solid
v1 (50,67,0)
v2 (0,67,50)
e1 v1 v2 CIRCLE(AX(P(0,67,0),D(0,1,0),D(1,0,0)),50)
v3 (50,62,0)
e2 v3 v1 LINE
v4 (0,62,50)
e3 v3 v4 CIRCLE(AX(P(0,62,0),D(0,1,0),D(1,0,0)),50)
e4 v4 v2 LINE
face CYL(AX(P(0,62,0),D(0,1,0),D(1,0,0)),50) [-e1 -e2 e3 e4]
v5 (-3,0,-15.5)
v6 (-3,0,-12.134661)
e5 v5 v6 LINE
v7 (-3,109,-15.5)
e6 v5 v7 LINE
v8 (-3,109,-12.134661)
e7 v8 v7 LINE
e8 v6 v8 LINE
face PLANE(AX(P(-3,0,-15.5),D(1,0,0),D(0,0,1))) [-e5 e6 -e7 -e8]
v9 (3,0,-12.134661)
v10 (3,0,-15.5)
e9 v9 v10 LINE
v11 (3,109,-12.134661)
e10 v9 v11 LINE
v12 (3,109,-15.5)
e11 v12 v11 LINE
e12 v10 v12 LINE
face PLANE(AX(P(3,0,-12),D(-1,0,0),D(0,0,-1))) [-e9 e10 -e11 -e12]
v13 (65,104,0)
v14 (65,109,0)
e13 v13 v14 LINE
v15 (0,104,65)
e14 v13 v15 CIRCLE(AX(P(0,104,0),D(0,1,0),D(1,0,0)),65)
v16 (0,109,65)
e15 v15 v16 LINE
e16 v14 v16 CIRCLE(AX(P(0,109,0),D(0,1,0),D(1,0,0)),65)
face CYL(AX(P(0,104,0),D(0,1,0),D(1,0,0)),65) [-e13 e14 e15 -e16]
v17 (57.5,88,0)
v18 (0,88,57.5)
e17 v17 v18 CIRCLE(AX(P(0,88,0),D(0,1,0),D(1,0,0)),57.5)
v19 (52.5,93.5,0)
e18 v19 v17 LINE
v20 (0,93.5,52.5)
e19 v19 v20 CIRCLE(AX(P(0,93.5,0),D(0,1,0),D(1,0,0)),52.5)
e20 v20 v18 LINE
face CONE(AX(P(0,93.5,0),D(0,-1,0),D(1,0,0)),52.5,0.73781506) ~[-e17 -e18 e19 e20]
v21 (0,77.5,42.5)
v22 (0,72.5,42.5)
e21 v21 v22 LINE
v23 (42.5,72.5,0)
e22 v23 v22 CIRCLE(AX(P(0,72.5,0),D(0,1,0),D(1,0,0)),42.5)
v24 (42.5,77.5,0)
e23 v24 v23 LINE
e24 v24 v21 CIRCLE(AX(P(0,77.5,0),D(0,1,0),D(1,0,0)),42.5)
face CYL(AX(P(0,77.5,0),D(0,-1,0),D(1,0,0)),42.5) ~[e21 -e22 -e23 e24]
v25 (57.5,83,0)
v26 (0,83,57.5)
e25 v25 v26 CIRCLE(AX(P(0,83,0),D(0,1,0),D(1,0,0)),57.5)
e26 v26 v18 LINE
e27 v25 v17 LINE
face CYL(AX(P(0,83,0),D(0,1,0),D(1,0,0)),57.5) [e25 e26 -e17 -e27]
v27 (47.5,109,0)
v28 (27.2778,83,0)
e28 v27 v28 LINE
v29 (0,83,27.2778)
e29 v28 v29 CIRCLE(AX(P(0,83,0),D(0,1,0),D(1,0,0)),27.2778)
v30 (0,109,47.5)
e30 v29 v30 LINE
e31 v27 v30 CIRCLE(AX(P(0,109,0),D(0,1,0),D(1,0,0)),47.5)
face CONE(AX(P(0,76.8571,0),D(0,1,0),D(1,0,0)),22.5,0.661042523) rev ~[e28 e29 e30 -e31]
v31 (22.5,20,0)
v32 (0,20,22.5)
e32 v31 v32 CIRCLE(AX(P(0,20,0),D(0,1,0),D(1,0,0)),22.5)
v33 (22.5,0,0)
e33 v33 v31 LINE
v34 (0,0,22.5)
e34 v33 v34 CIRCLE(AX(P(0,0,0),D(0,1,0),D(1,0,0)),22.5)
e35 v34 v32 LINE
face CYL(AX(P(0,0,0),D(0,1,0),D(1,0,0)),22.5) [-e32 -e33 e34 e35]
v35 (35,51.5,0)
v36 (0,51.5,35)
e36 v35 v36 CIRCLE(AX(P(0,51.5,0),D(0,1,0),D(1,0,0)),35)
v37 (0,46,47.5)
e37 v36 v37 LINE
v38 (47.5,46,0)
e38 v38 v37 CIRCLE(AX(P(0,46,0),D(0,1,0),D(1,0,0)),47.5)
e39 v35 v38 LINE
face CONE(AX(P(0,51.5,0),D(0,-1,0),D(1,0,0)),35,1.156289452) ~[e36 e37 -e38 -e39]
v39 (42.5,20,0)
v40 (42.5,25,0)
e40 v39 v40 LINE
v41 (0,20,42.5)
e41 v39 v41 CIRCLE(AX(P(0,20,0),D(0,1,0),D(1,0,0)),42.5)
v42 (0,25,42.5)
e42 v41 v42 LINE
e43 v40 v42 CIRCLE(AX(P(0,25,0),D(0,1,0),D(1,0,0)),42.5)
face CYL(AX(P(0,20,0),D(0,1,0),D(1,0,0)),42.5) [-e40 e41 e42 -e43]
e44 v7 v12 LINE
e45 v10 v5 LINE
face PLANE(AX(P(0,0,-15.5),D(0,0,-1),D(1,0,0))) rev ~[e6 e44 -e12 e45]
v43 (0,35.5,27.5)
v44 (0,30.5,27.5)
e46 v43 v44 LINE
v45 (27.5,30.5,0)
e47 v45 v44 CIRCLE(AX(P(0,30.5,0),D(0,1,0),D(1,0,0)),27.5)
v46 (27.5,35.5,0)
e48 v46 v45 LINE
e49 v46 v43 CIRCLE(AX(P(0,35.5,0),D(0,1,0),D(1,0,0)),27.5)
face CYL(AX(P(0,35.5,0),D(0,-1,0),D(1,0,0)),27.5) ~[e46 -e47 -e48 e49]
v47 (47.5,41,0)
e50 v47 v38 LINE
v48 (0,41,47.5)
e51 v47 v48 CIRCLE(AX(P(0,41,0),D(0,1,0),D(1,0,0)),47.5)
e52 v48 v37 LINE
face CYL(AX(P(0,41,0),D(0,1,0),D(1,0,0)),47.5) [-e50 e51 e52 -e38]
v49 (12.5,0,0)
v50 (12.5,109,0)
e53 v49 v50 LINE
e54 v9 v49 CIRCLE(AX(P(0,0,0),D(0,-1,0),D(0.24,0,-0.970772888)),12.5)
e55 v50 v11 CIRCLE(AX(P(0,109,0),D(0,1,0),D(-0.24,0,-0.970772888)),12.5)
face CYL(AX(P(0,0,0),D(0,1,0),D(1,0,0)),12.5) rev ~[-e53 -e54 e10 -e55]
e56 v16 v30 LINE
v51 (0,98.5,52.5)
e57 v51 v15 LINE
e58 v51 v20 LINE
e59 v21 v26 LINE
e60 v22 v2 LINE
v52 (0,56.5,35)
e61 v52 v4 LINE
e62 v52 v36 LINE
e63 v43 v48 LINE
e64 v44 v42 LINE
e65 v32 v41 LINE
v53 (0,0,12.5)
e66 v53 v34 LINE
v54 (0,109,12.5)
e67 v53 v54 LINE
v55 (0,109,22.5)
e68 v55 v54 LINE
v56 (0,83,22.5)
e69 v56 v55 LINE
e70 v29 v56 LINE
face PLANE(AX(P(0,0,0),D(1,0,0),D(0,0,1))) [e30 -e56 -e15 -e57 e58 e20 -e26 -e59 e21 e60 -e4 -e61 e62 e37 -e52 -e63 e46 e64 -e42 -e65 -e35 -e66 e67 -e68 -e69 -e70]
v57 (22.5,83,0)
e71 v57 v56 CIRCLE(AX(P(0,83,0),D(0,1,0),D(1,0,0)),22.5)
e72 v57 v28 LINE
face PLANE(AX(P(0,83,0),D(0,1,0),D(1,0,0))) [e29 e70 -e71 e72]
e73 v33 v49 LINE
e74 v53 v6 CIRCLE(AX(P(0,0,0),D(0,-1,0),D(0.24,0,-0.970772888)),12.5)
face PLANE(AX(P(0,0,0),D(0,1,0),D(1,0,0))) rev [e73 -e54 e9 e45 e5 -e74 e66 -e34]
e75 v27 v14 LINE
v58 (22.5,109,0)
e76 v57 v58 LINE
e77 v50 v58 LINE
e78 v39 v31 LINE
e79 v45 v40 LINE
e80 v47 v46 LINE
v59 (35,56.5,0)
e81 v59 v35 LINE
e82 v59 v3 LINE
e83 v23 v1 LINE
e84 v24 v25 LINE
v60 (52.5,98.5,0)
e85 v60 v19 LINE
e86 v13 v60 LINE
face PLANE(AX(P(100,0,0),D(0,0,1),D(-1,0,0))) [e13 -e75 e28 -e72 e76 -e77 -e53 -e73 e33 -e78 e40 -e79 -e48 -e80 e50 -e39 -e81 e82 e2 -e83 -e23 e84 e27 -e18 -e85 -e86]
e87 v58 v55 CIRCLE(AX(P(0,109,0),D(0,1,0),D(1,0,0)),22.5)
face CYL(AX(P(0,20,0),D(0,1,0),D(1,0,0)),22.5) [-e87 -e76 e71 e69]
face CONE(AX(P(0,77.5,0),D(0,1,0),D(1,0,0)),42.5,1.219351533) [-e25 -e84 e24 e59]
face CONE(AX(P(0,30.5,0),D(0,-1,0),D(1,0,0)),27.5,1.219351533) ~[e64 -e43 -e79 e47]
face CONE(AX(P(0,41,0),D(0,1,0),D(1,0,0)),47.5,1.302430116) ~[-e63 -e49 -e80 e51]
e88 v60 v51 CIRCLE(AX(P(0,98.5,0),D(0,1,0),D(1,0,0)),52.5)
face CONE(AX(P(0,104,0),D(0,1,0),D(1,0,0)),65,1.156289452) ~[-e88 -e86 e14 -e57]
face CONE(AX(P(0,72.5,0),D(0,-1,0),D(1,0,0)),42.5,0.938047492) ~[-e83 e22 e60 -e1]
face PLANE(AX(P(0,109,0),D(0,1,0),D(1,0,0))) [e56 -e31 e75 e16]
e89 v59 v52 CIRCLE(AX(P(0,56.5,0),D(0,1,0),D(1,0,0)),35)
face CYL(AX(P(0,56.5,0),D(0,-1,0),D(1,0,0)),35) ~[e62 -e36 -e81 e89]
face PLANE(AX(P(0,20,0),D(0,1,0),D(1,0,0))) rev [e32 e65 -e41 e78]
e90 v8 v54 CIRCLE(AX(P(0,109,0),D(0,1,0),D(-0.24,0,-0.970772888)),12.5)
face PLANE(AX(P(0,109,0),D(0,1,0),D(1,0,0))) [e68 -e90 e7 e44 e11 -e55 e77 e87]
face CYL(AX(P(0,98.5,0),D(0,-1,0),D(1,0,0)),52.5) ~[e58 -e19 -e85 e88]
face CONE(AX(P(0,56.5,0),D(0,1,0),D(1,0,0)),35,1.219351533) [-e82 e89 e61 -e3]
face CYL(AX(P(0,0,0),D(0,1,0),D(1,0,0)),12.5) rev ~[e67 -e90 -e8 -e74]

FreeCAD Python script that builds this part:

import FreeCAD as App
import Part
import Sketcher

V = App.Vector
Q = App.Units.Quantity

doc = App.newDocument("Part")
params = doc.addObject("Spreadsheet::Sheet", "Params")
for row, (alias, value) in enumerate([
    ("sketch1_width", "20 mm"),
    ("sketch1_height", "5 mm"),
    ("revolution_angle", "360 deg"),
    ("sketch2_width", "6 mm"),
    ("sketch2_height", "3.5 mm"),
    ("pocket1_length", "115 mm"),
    ("sketch3_width", "100 mm"),
    ("sketch3_height", "90 mm"),
    ("pocket2_length", "115 mm"),
], start=1):
    params.set(f"A{row}", alias)
    params.set(f"B{row}", "=" + value)
    params.setAlias(f"B{row}", alias)

body = doc.addObject("PartDesign::Body", "Body")

# Sketch on XY plane
sketch1 = doc.addObject("Sketcher::SketchObject", "Sketch")
body.addObject(sketch1)
sketch1.AttachmentSupport = (doc.XY_Plane, [""])
sketch1.MapMode = "FlatFace"
sketch1.addGeometry(Part.LineSegment(V(12.5, 0, 0), V(22.5, 0, 0)), False)
sketch1.addGeometry(Part.LineSegment(V(22.5, 0, 0), V(22.5, 20, 0)), False)
sketch1.addGeometry(Part.LineSegment(V(22.5, 20, 0), V(42.5, 20, 0)), False)
sketch1.addGeometry(Part.LineSegment(V(42.5, 20, 0), V(42.5, 25, 0)), False)
sketch1.addGeometry(Part.LineSegment(V(42.5, 25, 0), V(27.5, 30.5, 0)), False)
sketch1.addGeometry(Part.LineSegment(V(27.5, 30.5, 0), V(27.5, 35.5, 0)), False)
sketch1.addGeometry(Part.LineSegment(V(27.5, 35.5, 0), V(47.5, 41, 0)), False)
sketch1.addGeometry(Part.LineSegment(V(47.5, 41, 0), V(47.5, 46, 0)), False)
sketch1.addGeometry(Part.LineSegment(V(47.5, 46, 0), V(35, 51.5, 0)), False)
sketch1.addGeometry(Part.LineSegment(V(35, 51.5, 0), V(35, 56.5, 0)), False)
sketch1.addGeometry(Part.LineSegment(V(35, 56.5, 0), V(50, 62, 0)), False)
sketch1.addGeometry(Part.LineSegment(V(50, 62, 0), V(50, 67, 0)), False)
sketch1.addGeometry(Part.LineSegment(V(50, 67, 0), V(42.5, 72.5, 0)), False)
sketch1.addGeometry(Part.LineSegment(V(42.5, 72.5, 0), V(42.5, 77.5, 0)), False)
sketch1.addGeometry(Part.LineSegment(V(42.5, 77.5, 0), V(57.5, 83, 0)), False)
sketch1.addGeometry(Part.LineSegment(V(57.5, 83, 0), V(57.5, 88, 0)), False)
sketch1.addGeometry(Part.LineSegment(V(57.5, 88, 0), V(52.5, 93.5, 0)), False)
sketch1.addGeometry(Part.LineSegment(V(52.5, 93.5, 0), V(52.5, 98.5, 0)), False)
sketch1.addGeometry(Part.LineSegment(V(52.5, 98.5, 0), V(65, 104, 0)), False)
sketch1.addGeometry(Part.LineSegment(V(65, 104, 0), V(65, 109, 0)), False)
sketch1.addGeometry(Part.LineSegment(V(65, 109, 0), V(47.5, 109, 0)), False)
sketch1.addGeometry(Part.LineSegment(V(47.5, 109, 0), V(27.2778, 83, 0)), False)
sketch1.addGeometry(Part.LineSegment(V(27.2778, 83, 0), V(22.5, 83, 0)), False)
sketch1.addGeometry(Part.LineSegment(V(22.5, 83, 0), V(22.5, 109, 0)), False)
sketch1.addGeometry(Part.LineSegment(V(22.5, 109, 0), V(12.5, 109, 0)), False)
sketch1.addGeometry(Part.LineSegment(V(12.5, 109, 0), V(12.5, 0, 0)), False)
sketch1.addConstraint(Sketcher.Constraint("Coincident", 0, 2, 1, 1))
sketch1.addConstraint(Sketcher.Constraint("Coincident", 1, 2, 2, 1))
sketch1.addConstraint(Sketcher.Constraint("Coincident", 2, 2, 3, 1))
sketch1.addConstraint(Sketcher.Constraint("Coincident", 3, 2, 4, 1))
sketch1.addConstraint(Sketcher.Constraint("Coincident", 4, 2, 5, 1))
sketch1.addConstraint(Sketcher.Constraint("Coincident", 5, 2, 6, 1))
sketch1.addConstraint(Sketcher.Constraint("Coincident", 6, 2, 7, 1))
sketch1.addConstraint(Sketcher.Constraint("Coincident", 7, 2, 8, 1))
sketch1.addConstraint(Sketcher.Constraint("Coincident", 8, 2, 9, 1))
sketch1.addConstraint(Sketcher.Constraint("Coincident", 9, 2, 10, 1))
sketch1.addConstraint(Sketcher.Constraint("Coincident", 10, 2, 11, 1))
sketch1.addConstraint(Sketcher.Constraint("Coincident", 11, 2, 12, 1))
sketch1.addConstraint(Sketcher.Constraint("Coincident", 12, 2, 13, 1))
sketch1.addConstraint(Sketcher.Constraint("Coincident", 13, 2, 14, 1))
sketch1.addConstraint(Sketcher.Constraint("Coincident", 14, 2, 15, 1))
sketch1.addConstraint(Sketcher.Constraint("Coincident", 15, 2, 16, 1))
sketch1.addConstraint(Sketcher.Constraint("Coincident", 16, 2, 17, 1))
sketch1.addConstraint(Sketcher.Constraint("Coincident", 17, 2, 18, 1))
sketch1.addConstraint(Sketcher.Constraint("Coincident", 18, 2, 19, 1))
sketch1.addConstraint(Sketcher.Constraint("Coincident", 19, 2, 20, 1))
sketch1.addConstraint(Sketcher.Constraint("Coincident", 20, 2, 21, 1))
sketch1.addConstraint(Sketcher.Constraint("Coincident", 21, 2, 22, 1))
sketch1.addConstraint(Sketcher.Constraint("Coincident", 22, 2, 23, 1))
sketch1.addConstraint(Sketcher.Constraint("Coincident", 23, 2, 24, 1))
sketch1.addConstraint(Sketcher.Constraint("Coincident", 24, 2, 25, 1))
sketch1.addConstraint(Sketcher.Constraint("Coincident", 25, 2, 0, 1))
sketch1.addConstraint(Sketcher.Constraint("Horizontal", 0))
sketch1.addConstraint(Sketcher.Constraint("Vertical", 1))
sketch1.addConstraint(Sketcher.Constraint("Horizontal", 2))
sketch1.addConstraint(Sketcher.Constraint("Vertical", 3))
sketch1.addConstraint(Sketcher.Constraint("Vertical", 5))
sketch1.addConstraint(Sketcher.Constraint("Vertical", 7))
sketch1.addConstraint(Sketcher.Constraint("Vertical", 9))
sketch1.addConstraint(Sketcher.Constraint("Vertical", 11))
sketch1.addConstraint(Sketcher.Constraint("Vertical", 13))
sketch1.addConstraint(Sketcher.Constraint("Vertical", 15))
sketch1.addConstraint(Sketcher.Constraint("Vertical", 17))
sketch1.addConstraint(Sketcher.Constraint("Vertical", 19))
sketch1.addConstraint(Sketcher.Constraint("Horizontal", 20))
sketch1.addConstraint(Sketcher.Constraint("Horizontal", 22))
sketch1.addConstraint(Sketcher.Constraint("Vertical", 23))
sketch1.addConstraint(Sketcher.Constraint("Horizontal", 24))
sketch1.addConstraint(Sketcher.Constraint("Vertical", 25))
sketch1.addConstraint(Sketcher.Constraint("PointOnObject", 0, 2, -1))
sketch1.addConstraint(Sketcher.Constraint("Parallel", 10, 14))
sketch1.addConstraint(Sketcher.Constraint("Horizontal", 14, 2, 21, 2))
sketch1.addConstraint(Sketcher.Constraint("Horizontal", 20, 2, 23, 2))
sketch1.addConstraint(Sketcher.Constraint("Vertical", 3, 2, 12, 2))
sketch1.addConstraint(Sketcher.Constraint("Vertical", 7, 2, 20, 2))
sketch1.addConstraint(Sketcher.Constraint("Vertical", 1, 2, 22, 2))
sketch1.addConstraint(Sketcher.Constraint("Equal", 2, 1))
sketch1.addConstraint(Sketcher.Constraint("Equal", 3, 5))
sketch1.addConstraint(Sketcher.Constraint("Equal", 5, 7))
sketch1.addConstraint(Sketcher.Constraint("Equal", 7, 9))
sketch1.addConstraint(Sketcher.Constraint("Equal", 9, 11))
sketch1.addConstraint(Sketcher.Constraint("Equal", 11, 13))
sketch1.addConstraint(Sketcher.Constraint("Equal", 13, 15))
sketch1.addConstraint(Sketcher.Constraint("Equal", 15, 17))
sketch1.addConstraint(Sketcher.Constraint("Equal", 17, 19))
sketch1.addConstraint(Sketcher.Constraint("Equal", 4, 10))
sketch1.addConstraint(Sketcher.Constraint("Equal", 10, 14))
sketch1.addConstraint(Sketcher.Constraint("Equal", 8, 18))
sketch1.addConstraint(Sketcher.Constraint("DistanceX", 2, 1, 2, 2, Q("20 mm")))
sketch1.addConstraint(Sketcher.Constraint("DistanceY", 3, 1, 3, 2, Q("5 mm")))
sketch1.addConstraint(Sketcher.Constraint("DistanceX", -1, 1, 8, 2, Q("35 mm")))
sketch1.addConstraint(Sketcher.Constraint("DistanceX", -1, 1, 10, 2, Q("50 mm")))
sketch1.addConstraint(Sketcher.Constraint("DistanceX", -1, 1, 18, 2, Q("65 mm")))
sketch1.addConstraint(Sketcher.Constraint("DistanceX", 1, 2, 4, 2, Q("5 mm")))
sketch1.addConstraint(Sketcher.Constraint("DistanceX", 3, 2, 6, 2, Q("5 mm")))
sketch1.addConstraint(Sketcher.Constraint("DistanceY", 3, 2, 6, 2, Q("16 mm")))
sketch1.addConstraint(Sketcher.Constraint("DistanceY", 5, 2, 8, 2, Q("16 mm")))
sketch1.addConstraint(Sketcher.Constraint("DistanceY", 7, 2, 10, 2, Q("16 mm")))
sketch1.addConstraint(Sketcher.Constraint("DistanceY", 9, 2, 12, 2, Q("16 mm")))
sketch1.addConstraint(Sketcher.Constraint("DistanceX", 16, 2, 15, 2, Q("5 mm")))
sketch1.addConstraint(Sketcher.Constraint("DistanceY", 13, 2, 16, 2, Q("16 mm")))
sketch1.addConstraint(Sketcher.Constraint("DistanceY", 15, 2, 18, 2, Q("16 mm")))
sketch1.addConstraint(Sketcher.Constraint("DistanceX", 24, 2, 20, 2, Q("35 mm")))
sketch1.addConstraint(Sketcher.Constraint("DistanceX", 22, 2, 22, 1, Q("4.7778 mm")))
sketch1.setExpression("Constraints[62]", "Params.sketch1_width")
sketch1.setExpression("Constraints[63]", "Params.sketch1_height")
revolution = doc.addObject("PartDesign::Revolution", "Revolution")
body.addObject(revolution)
revolution.Profile = sketch1
revolution.ReferenceAxis = (sketch1, ["V_Axis"])
revolution.setExpression("Angle", "Params.revolution_angle")

# Sketch on XZ plane
sketch2 = doc.addObject("Sketcher::SketchObject", "Sketch001")
body.addObject(sketch2)
sketch2.AttachmentSupport = (doc.XZ_Plane, [""])
sketch2.MapMode = "FlatFace"
sketch2.addGeometry(Part.LineSegment(V(3, -15.5, 0), V(-3, -15.5, 0)), False)
sketch2.addGeometry(Part.LineSegment(V(-3, -15.5, 0), V(-3, -12, 0)), False)
sketch2.addGeometry(Part.LineSegment(V(-3, -12, 0), V(3, -12, 0)), False)
sketch2.addGeometry(Part.LineSegment(V(3, -12, 0), V(3, -15.5, 0)), False)
sketch2.addConstraint(Sketcher.Constraint("Coincident", 0, 2, 1, 1))
sketch2.addConstraint(Sketcher.Constraint("Coincident", 1, 2, 2, 1))
sketch2.addConstraint(Sketcher.Constraint("Coincident", 2, 2, 3, 1))
sketch2.addConstraint(Sketcher.Constraint("Coincident", 3, 2, 0, 1))
sketch2.addConstraint(Sketcher.Constraint("Horizontal", 0))
sketch2.addConstraint(Sketcher.Constraint("Vertical", 1))
sketch2.addConstraint(Sketcher.Constraint("Horizontal", 2))
sketch2.addConstraint(Sketcher.Constraint("Vertical", 3))
sketch2.addConstraint(Sketcher.Constraint("DistanceX", 0, 2, 0, 1, Q("6 mm")))
sketch2.addConstraint(Sketcher.Constraint("DistanceX", 0, 2, -1, 1, Q("3 mm")))
sketch2.addConstraint(Sketcher.Constraint("DistanceY", 1, 1, 1, 2, Q("3.5 mm")))
sketch2.addConstraint(Sketcher.Constraint("DistanceY", 1, 2, -1, 1, Q("12 mm")))
sketch2.setExpression("Constraints[8]", "Params.sketch2_width")
sketch2.setExpression("Constraints[10]", "Params.sketch2_height")
pocket1 = doc.addObject("PartDesign::Pocket", "Pocket")
body.addObject(pocket1)
pocket1.Profile = sketch2
pocket1.setExpression("Length", "Params.pocket1_length")

# Sketch on XZ plane
sketch3 = doc.addObject("Sketcher::SketchObject", "Sketch002")
body.addObject(sketch3)
sketch3.AttachmentSupport = (doc.XZ_Plane, [""])
sketch3.MapMode = "FlatFace"
sketch3.addGeometry(Part.LineSegment(V(0, 0, 0), V(0, 90, 0)), False)
sketch3.addGeometry(Part.LineSegment(V(0, 90, 0), V(100, 90, 0)), False)
sketch3.addGeometry(Part.LineSegment(V(100, 90, 0), V(100, 0, 0)), False)
sketch3.addGeometry(Part.LineSegment(V(100, 0, 0), V(0, 0, 0)), False)
sketch3.addConstraint(Sketcher.Constraint("Coincident", 0, 2, 1, 1))
sketch3.addConstraint(Sketcher.Constraint("Coincident", 1, 2, 2, 1))
sketch3.addConstraint(Sketcher.Constraint("Coincident", 2, 2, 3, 1))
sketch3.addConstraint(Sketcher.Constraint("Coincident", 3, 2, 0, 1))
sketch3.addConstraint(Sketcher.Constraint("Vertical", 0))
sketch3.addConstraint(Sketcher.Constraint("Horizontal", 1))
sketch3.addConstraint(Sketcher.Constraint("Vertical", 2))
sketch3.addConstraint(Sketcher.Constraint("Horizontal", 3))
sketch3.addConstraint(Sketcher.Constraint("Coincident", 3, 2, -1, 1))
sketch3.addConstraint(Sketcher.Constraint("DistanceX", 1, 1, 1, 2, Q("100 mm")))
sketch3.addConstraint(Sketcher.Constraint("DistanceY", 0, 1, 0, 2, Q("90 mm")))
sketch3.setExpression("Constraints[9]", "Params.sketch3_width")
sketch3.setExpression("Constraints[10]", "Params.sketch3_height")
pocket2 = doc.addObject("PartDesign::Pocket", "Pocket001")
body.addObject(pocket2)
pocket2.Profile = sketch3
pocket2.setExpression("Length", "Params.pocket2_length")

doc.recompute()
